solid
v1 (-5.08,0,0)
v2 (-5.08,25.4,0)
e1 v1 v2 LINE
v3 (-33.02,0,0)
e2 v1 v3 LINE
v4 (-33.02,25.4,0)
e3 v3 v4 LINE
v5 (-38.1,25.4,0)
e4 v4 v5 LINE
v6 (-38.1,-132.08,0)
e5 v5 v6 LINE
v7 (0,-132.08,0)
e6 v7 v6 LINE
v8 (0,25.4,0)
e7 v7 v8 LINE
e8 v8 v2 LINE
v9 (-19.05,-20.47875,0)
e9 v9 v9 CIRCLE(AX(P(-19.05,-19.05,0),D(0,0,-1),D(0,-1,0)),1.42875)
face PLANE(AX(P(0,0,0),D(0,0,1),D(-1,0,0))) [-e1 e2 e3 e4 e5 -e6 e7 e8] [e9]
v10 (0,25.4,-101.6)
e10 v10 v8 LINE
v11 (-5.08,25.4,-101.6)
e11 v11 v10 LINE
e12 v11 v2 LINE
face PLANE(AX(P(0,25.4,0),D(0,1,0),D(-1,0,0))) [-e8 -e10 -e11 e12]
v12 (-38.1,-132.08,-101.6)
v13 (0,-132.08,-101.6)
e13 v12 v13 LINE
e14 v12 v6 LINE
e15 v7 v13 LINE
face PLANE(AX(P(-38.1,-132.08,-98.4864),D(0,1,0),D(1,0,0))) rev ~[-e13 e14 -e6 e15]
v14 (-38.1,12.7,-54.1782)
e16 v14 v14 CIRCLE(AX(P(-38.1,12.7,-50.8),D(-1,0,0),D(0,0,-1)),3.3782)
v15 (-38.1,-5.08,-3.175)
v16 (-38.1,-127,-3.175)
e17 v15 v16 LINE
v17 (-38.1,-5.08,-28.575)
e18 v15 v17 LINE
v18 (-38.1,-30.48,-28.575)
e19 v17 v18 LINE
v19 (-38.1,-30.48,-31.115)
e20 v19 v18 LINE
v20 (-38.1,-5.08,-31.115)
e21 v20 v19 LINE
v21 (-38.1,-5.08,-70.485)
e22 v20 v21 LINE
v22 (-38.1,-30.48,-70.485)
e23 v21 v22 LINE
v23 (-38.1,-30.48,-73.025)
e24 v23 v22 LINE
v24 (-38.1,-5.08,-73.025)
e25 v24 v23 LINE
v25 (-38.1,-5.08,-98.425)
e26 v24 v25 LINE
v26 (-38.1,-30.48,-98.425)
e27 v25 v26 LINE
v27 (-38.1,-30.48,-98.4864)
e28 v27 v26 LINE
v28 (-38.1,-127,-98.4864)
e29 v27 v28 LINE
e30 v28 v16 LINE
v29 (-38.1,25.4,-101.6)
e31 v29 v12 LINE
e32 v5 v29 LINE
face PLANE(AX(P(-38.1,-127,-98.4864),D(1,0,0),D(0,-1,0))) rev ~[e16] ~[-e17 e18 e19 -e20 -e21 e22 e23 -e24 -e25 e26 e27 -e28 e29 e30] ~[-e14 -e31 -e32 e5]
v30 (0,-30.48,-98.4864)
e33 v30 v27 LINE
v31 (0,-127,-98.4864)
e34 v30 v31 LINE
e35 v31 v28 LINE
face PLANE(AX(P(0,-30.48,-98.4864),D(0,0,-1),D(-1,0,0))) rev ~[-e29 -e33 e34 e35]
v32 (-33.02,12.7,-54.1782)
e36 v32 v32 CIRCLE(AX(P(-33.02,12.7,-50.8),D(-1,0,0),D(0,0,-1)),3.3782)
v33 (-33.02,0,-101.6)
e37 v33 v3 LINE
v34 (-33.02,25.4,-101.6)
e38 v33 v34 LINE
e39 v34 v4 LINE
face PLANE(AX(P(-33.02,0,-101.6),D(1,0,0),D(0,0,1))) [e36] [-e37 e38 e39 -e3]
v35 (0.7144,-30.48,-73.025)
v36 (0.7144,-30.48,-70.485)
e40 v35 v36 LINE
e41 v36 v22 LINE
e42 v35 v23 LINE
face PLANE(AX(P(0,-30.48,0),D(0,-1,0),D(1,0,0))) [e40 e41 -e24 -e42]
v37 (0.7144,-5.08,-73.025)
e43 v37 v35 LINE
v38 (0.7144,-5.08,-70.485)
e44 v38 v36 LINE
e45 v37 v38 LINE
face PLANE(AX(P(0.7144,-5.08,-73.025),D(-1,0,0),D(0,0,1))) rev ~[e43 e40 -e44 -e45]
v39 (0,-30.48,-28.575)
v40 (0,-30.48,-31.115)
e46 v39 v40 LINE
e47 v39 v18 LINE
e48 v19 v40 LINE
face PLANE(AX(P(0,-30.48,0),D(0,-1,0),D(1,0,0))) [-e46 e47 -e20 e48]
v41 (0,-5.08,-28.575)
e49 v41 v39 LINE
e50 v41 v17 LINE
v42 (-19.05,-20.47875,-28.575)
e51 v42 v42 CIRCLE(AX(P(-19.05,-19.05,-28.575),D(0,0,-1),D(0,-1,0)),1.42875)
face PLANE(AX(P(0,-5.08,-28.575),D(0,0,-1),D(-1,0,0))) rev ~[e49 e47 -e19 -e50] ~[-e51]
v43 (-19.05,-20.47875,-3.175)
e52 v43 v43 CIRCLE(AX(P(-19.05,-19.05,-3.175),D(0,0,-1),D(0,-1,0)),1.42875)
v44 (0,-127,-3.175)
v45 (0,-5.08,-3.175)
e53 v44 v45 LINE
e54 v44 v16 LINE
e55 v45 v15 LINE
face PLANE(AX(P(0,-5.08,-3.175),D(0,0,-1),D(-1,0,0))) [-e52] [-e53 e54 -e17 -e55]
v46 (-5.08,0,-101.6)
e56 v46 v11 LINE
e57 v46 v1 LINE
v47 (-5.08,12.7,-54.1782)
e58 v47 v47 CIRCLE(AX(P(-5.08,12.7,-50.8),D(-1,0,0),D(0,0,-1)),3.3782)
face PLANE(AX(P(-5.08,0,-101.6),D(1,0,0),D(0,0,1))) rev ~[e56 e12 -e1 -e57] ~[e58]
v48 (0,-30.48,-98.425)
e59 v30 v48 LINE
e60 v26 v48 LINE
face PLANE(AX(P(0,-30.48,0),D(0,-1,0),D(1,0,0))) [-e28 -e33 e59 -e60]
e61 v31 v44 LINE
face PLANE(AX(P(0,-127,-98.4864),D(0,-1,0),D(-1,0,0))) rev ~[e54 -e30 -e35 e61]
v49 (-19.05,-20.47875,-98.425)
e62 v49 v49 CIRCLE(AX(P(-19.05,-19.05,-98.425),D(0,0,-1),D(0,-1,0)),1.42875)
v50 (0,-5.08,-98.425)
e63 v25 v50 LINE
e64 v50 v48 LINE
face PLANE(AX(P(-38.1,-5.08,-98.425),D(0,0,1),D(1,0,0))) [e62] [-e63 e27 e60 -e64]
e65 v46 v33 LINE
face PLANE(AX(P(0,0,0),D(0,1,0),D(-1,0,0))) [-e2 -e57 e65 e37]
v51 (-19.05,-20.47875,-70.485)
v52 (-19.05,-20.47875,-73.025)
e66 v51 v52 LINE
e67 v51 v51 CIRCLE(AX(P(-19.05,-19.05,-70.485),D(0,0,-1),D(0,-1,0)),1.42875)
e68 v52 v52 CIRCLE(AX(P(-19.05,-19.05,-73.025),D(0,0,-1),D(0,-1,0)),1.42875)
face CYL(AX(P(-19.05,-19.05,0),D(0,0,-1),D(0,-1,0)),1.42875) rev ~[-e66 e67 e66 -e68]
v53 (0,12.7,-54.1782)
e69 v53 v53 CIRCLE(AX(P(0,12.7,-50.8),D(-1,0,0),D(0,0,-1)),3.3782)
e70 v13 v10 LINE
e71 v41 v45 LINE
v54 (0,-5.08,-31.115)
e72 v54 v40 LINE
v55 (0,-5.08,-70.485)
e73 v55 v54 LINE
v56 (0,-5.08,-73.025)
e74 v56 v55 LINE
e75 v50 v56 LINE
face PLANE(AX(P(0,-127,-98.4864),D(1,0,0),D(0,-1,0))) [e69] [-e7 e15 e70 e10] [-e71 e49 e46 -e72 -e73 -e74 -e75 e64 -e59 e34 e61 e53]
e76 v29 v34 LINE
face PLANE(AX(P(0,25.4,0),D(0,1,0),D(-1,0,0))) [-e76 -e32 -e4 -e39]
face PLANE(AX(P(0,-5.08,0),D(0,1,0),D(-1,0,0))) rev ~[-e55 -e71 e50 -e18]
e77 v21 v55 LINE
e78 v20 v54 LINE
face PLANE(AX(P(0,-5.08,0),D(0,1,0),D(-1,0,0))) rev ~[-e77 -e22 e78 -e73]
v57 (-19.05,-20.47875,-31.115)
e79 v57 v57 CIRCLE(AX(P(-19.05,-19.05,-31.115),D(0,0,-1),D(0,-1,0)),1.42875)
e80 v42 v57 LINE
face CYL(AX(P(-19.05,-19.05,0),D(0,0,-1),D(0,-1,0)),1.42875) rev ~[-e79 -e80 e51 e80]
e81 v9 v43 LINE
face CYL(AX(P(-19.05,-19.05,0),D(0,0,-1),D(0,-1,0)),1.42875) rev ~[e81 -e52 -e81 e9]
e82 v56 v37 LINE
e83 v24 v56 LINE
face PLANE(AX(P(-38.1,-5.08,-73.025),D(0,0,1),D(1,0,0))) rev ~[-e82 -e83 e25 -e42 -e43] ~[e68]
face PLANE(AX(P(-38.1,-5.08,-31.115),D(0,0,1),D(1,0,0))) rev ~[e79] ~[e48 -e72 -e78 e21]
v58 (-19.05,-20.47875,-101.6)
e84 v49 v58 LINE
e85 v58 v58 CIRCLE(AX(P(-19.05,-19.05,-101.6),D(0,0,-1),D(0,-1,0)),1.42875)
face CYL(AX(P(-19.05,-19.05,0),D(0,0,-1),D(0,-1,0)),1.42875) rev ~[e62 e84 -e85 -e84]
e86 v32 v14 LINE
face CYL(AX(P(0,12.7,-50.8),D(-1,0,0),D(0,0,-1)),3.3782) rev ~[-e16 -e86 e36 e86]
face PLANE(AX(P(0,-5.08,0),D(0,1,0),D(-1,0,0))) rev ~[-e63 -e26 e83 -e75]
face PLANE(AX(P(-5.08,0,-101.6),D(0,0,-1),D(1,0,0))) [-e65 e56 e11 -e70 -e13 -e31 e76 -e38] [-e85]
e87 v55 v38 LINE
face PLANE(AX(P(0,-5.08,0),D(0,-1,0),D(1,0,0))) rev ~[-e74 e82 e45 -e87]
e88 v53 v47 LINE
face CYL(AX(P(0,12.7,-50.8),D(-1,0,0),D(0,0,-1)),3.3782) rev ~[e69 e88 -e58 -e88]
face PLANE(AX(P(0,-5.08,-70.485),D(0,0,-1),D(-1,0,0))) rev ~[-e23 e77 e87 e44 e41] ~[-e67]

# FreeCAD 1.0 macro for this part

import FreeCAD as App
import Part
import Sketcher
Q = App.Units.Quantity


def add_polygon(sketch, points):
    """Adds a closed chain of lines whose ends are joined by coincident constraints."""
    first, n = sketch.GeometryCount, len(points)
    for a, b in zip(points, points[1:] + points[:1]):
        sketch.addGeometry(Part.LineSegment(App.Vector(*a, 0), App.Vector(*b, 0)), False)
    for i in range(n):
        sketch.addConstraint(Sketcher.Constraint("Coincident", first + i, 2, first + (i + 1) % n, 1))

doc = App.newDocument("Part")
params = doc.addObject("Spreadsheet::Sheet", "Params")
for row, (alias, value) in enumerate([
    ("sketch1_height", "4 in"),
    ("sketch1_width", "0.2 in"),
    ("pad1_length", "1 in"),
    ("sketch2_height", "4 in"),
    ("sketch2_width", "1.5 in"),
    ("pad2_length", "0.2 in"),
    ("sketch3_diameter", "0.266 in"),
    ("hole_diameter", "0.266 in"),
    ("sketch4_height", "0.1 in"),
    ("sketch4_height2", "0.125 in"),
    ("sketch4_width", "1.5 in"),
    ("pad3_length", "1 in"),
    ("hole2_diameter", "0.1125 in"),
    ("sketch6_width", "1.5 in"),
    ("sketch6_height", "0.125 in"),
    ("pad4_length", "4 in"),
    ("sketch7_height", "0.2 in"),
    ("sketch7_width", "1.5 in"),
    ("pad5_length", "3.8 in"),
], start=1):
    params.set(f"A{row}", alias)
    params.set(f"B{row}", "=" + value)
    params.setAlias(f"B{row}", alias)

body = doc.addObject("PartDesign::Body", "Body")
body.AllowCompound = True

# Sketch on XZ plane
sketch1 = doc.addObject("Sketcher::SketchObject", "Sketch")
body.addObject(sketch1)
sketch1.AttachmentSupport = (doc.XZ_Plane, [""])
sketch1.MapMode = "FlatFace"
add_polygon(sketch1, [(-5, 0), (0, 0), (0, -102), (-5, -102)])  # lines 0-3
add_polygon(sketch1, [(-38, 0), (-33, 0), (-33, -102), (-38, -102)])  # lines 4-7
sketch1.addConstraint([
    Sketcher.Constraint("Horizontal", 0),
    Sketcher.Constraint("Vertical", 1),
    Sketcher.Constraint("Horizontal", 2),
    Sketcher.Constraint("Vertical", 3),
    Sketcher.Constraint("Horizontal", 4),
    Sketcher.Constraint("Vertical", 5),
    Sketcher.Constraint("Horizontal", 6),
    Sketcher.Constraint("Vertical", 7),
    Sketcher.Constraint("Coincident", 0, 2, -1, 1),
    Sketcher.Constraint("PointOnObject", 4, 2, -1),
    Sketcher.Constraint("Horizontal", 2, 2, 5, 2),
    Sketcher.Constraint("Equal", 2, 4),
    Sketcher.Constraint("DistanceY", 1, 2, 1, 1, Q("4 in")),
    Sketcher.Constraint("DistanceX", 0, 1, 0, 2, Q("0.2 in")),
    Sketcher.Constraint("DistanceX", 6, 2, -1, 1, Q("1.5 in")),
])
sketch1.setExpression("Constraints[20]", "Params.sketch1_height")
sketch1.setExpression("Constraints[21]", "Params.sketch1_width")
pad1 = doc.addObject("PartDesign::Pad", "Pad")
body.addObject(pad1)
pad1.Profile = sketch1
pad1.setExpression("Length", "Params.pad1_length")
pad1.Reversed = True

# Sketch on XZ plane
sketch2 = doc.addObject("Sketcher::SketchObject", "Sketch001")
body.addObject(sketch2)
sketch2.AttachmentSupport = (doc.XZ_Plane, [""])
sketch2.MapMode = "FlatFace"
add_polygon(sketch2, [(0, 0), (0, -102), (-38, -102), (-38, 0)])  # lines 0-3
sketch2.addConstraint([
    Sketcher.Constraint("Vertical", 0),
    Sketcher.Constraint("Horizontal", 1),
    Sketcher.Constraint("Vertical", 2),
    Sketcher.Constraint("Horizontal", 3),
    Sketcher.Constraint("Coincident", 3, 2, -1, 1),
    Sketcher.Constraint("DistanceY", 0, 2, 0, 1, Q("4 in")),
    Sketcher.Constraint("DistanceX", 1, 2, 1, 1, Q("1.5 in")),
])
sketch2.setExpression("Constraints[9]", "Params.sketch2_height")
sketch2.setExpression("Constraints[10]", "Params.sketch2_width")
pad2 = doc.addObject("PartDesign::Pad", "Pad001")
body.addObject(pad2)
pad2.Profile = sketch2
pad2.setExpression("Length", "Params.pad2_length")

# Sketch on YZ plane
sketch3 = doc.addObject("Sketcher::SketchObject", "Sketch002")
body.addObject(sketch3)
sketch3.AttachmentSupport = (doc.YZ_Plane, [""])
sketch3.MapMode = "FlatFace"
sketch3.addGeometry(Part.Circle(App.Vector(12.7, -50.8, 0), App.Vector(0, 0, 1), 3.4), False)
sketch3.addConstraint([
    Sketcher.Constraint("Diameter", 0, Q("0.266 in")),
    Sketcher.Constraint("DistanceY", 0, 3, -1, 1, Q("2 in")),
    Sketcher.Constraint("DistanceX", -1, 1, 0, 3, Q("0.5 in")),
])
sketch3.setExpression("Constraints[0]", "Params.sketch3_diameter")
doc.recompute()
hole = doc.addObject("PartDesign::Hole", "Hole")
body.addObject(hole)
hole.Profile = sketch3
hole.ThreadType = "None"
hole.setExpression("Diameter", "Params.hole_diameter")
hole.DepthType = "ThroughAll"

# Sketch on XZ plane
sketch4 = doc.addObject("Sketcher::SketchObject", "Sketch003")
body.addObject(sketch4)
sketch4.AttachmentSupport = (doc.XZ_Plane, [""])
sketch4.MapMode = "FlatFace"
sketch4.AttachmentOffset = App.Placement(App.Vector(0, 0, 0.2 * 25.4), App.Rotation())
add_polygon(sketch4, [(-38.1, -101.6), (0, -101.6), (0, -98.4), (-38.1, -98.4)])  # lines 0-3
add_polygon(sketch4, [(-38.1, -73), (0.7, -73), (0.7, -70.5), (-38.1, -70.5)])  # lines 4-7
add_polygon(sketch4, [(-38.1, -28.6), (-38.1, -31.1), (0, -31.1), (0, -28.6)])  # lines 8-11
add_polygon(sketch4, [(-38.1, 0), (-38.1, -3.2), (0, -3.2), (0, 0)])  # lines 12-15
sketch4.addConstraint([
    Sketcher.Constraint("Horizontal", 0),
    Sketcher.Constraint("Vertical", 1),
    Sketcher.Constraint("Horizontal", 2),
    Sketcher.Constraint("Vertical", 3),
    Sketcher.Constraint("Horizontal", 4),
    Sketcher.Constraint("Vertical", 5),
    Sketcher.Constraint("Horizontal", 6),
    Sketcher.Constraint("Vertical", 7),
    Sketcher.Constraint("Vertical", 8),
    Sketcher.Constraint("Horizontal", 9),
    Sketcher.Constraint("Vertical", 10),
    Sketcher.Constraint("Horizontal", 11),
    Sketcher.Constraint("Vertical", 12),
    Sketcher.Constraint("Horizontal", 13),
    Sketcher.Constraint("Vertical", 14),
    Sketcher.Constraint("Horizontal", 15),
    Sketcher.Constraint("Coincident", 14, 2, -1, 1),
    Sketcher.Constraint("PointOnObject", 0, 2, -2),
    Sketcher.Constraint("PointOnObject", 9, 2, -2),
    Sketcher.Constraint("Vertical", 3, 2, 6, 2),
    Sketcher.Constraint("Vertical", 7, 2, 8, 2),
    Sketcher.Constraint("Vertical", 11, 2, 12, 2),
    Sketcher.Constraint("Equal", 7, 8),
    Sketcher.Constraint("Equal", 3, 12),
    Sketcher.Constraint("DistanceY", 5, 1, 5, 2, Q("0.1 in")),
    Sketcher.Constraint("DistanceY", 1, 2, 4, 2, Q("1 in")),
    Sketcher.Constraint("DistanceY", 11, 2, 12, 2, Q("1 in")),
    Sketcher.Constraint("DistanceY", 1, 1, 1, 2, Q("0.125 in")),
    Sketcher.Constraint("DistanceX", 0, 1, 0, 2, Q("1.5 in")),
    Sketcher.Constraint("DistanceY", 0, 2, -1, 1, Q("4 in")),
    Sketcher.Constraint("DistanceX", 4, 1, 4, 2, Q("38.8144 mm")),
])
sketch4.setExpression("Constraints[40]", "Params.sketch4_height")
sketch4.setExpression("Constraints[43]", "Params.sketch4_height2")
sketch4.setExpression("Constraints[44]", "Params.sketch4_width")
pad3 = doc.addObject("PartDesign::Pad", "Pad002")
body.addObject(pad3)
pad3.Profile = sketch4
pad3.setExpression("Length", "Params.pad3_length")

# Sketch on XY plane
sketch5 = doc.addObject("Sketcher::SketchObject", "Sketch004")
body.addObject(sketch5)
sketch5.AttachmentSupport = (doc.XY_Plane, [""])
sketch5.MapMode = "FlatFace"
sketch5.addGeometry(Part.Circle(App.Vector(-19.1, -19.1, 0), App.Vector(0, 0, 1), 1.4), False)
sketch5.addConstraint([
    Sketcher.Constraint("Diameter", 0, Q("0.1125 in")),
    Sketcher.Constraint("DistanceX", 0, 3, -1, 1, Q("0.75 in")),
    Sketcher.Constraint("DistanceY", 0, 3, -1, 1, Q("0.75 in")),
])
doc.recompute()
hole2 = doc.addObject("PartDesign::Hole", "Hole001")
body.addObject(hole2)
hole2.Profile = sketch5
hole2.ThreadType = "None"
hole2.setExpression("Diameter", "Params.hole2_diameter")
hole2.DepthType = "ThroughAll"

# Sketch on XZ plane
sketch6 = doc.addObject("Sketcher::SketchObject", "Sketch005")
body.addObject(sketch6)
sketch6.AttachmentSupport = (doc.XZ_Plane, [""])
sketch6.MapMode = "FlatFace"
sketch6.AttachmentOffset = App.Placement(App.Vector(0, 0, 1.2 * 25.4), App.Rotation())
add_polygon(sketch6, [(-38.1, 0), (-38.1, -3.2), (0, -3.2), (0, 0)])  # lines 0-3
add_polygon(sketch6, [(0, -98.5), (-38.1, -98.5), (-38.1, -101.6), (0, -101.6)])  # lines 4-7
sketch6.addConstraint([
    Sketcher.Constraint("Vertical", 0),
    Sketcher.Constraint("Horizontal", 1),
    Sketcher.Constraint("Vertical", 2),
    Sketcher.Constraint("Horizontal", 3),
    Sketcher.Constraint("Horizontal", 4),
    Sketcher.Constraint("Vertical", 5),
    Sketcher.Constraint("Horizontal", 6),
    Sketcher.Constraint("Vertical", 7),
    Sketcher.Constraint("Coincident", 2, 2, -1, 1),
    Sketcher.Constraint("PointOnObject", 6, 2, -2),
    Sketcher.Constraint("Vertical", 3, 2, 4, 2),
    Sketcher.Constraint("DistanceX", 1, 1, 1, 2, Q("1.5 in")),
    Sketcher.Constraint("DistanceY", 5, 2, -1, 1, Q("4 in")),
    Sketcher.Constraint("DistanceY", 0, 2, 0, 1, Q("0.125 in")),
    Sketcher.Constraint("DistanceY", 5, 2, 5, 1, Q("3.1136 mm")),
])
sketch6.setExpression("Constraints[19]", "Params.sketch6_width")
sketch6.setExpression("Constraints[21]", "Params.sketch6_height")
pad4 = doc.addObject("PartDesign::Pad", "Pad003")
body.addObject(pad4)
pad4.Profile = sketch6
pad4.setExpression("Length", "Params.pad4_length")

# Sketch on XY plane
sketch7 = doc.addObject("Sketcher::SketchObject", "Sketch006")
body.addObject(sketch7)
sketch7.AttachmentSupport = (doc.XY_Plane, [""])
sketch7.MapMode = "FlatFace"
sketch7.AttachmentOffset = App.Placement(App.Vector(0, 0, -98.4864), App.Rotation())
add_polygon(sketch7, [(0, -127), (-38, -127), (-38, -132), (0, -132)])  # lines 0-3
sketch7.addConstraint([
    Sketcher.Constraint("Horizontal", 0),
    Sketcher.Constraint("Vertical", 1),
    Sketcher.Constraint("Horizontal", 2),
    Sketcher.Constraint("Vertical", 3),
    Sketcher.Constraint("PointOnObject", 2, 2, -2),
    Sketcher.Constraint("DistanceY", 1, 2, 1, 1, Q("0.2 in")),
    Sketcher.Constraint("DistanceX", 0, 2, 0, 1, Q("1.5 in")),
    Sketcher.Constraint("DistanceY", 0, 2, -1, 1, Q("5 in")),
])
sketch7.setExpression("Constraints[9]", "Params.sketch7_height")
sketch7.setExpression("Constraints[10]", "Params.sketch7_width")
pad5 = doc.addObject("PartDesign::Pad", "Pad004")
body.addObject(pad5)
pad5.Profile = sketch7
pad5.setExpression("Length", "Params.pad5_length")

doc.recompute()
